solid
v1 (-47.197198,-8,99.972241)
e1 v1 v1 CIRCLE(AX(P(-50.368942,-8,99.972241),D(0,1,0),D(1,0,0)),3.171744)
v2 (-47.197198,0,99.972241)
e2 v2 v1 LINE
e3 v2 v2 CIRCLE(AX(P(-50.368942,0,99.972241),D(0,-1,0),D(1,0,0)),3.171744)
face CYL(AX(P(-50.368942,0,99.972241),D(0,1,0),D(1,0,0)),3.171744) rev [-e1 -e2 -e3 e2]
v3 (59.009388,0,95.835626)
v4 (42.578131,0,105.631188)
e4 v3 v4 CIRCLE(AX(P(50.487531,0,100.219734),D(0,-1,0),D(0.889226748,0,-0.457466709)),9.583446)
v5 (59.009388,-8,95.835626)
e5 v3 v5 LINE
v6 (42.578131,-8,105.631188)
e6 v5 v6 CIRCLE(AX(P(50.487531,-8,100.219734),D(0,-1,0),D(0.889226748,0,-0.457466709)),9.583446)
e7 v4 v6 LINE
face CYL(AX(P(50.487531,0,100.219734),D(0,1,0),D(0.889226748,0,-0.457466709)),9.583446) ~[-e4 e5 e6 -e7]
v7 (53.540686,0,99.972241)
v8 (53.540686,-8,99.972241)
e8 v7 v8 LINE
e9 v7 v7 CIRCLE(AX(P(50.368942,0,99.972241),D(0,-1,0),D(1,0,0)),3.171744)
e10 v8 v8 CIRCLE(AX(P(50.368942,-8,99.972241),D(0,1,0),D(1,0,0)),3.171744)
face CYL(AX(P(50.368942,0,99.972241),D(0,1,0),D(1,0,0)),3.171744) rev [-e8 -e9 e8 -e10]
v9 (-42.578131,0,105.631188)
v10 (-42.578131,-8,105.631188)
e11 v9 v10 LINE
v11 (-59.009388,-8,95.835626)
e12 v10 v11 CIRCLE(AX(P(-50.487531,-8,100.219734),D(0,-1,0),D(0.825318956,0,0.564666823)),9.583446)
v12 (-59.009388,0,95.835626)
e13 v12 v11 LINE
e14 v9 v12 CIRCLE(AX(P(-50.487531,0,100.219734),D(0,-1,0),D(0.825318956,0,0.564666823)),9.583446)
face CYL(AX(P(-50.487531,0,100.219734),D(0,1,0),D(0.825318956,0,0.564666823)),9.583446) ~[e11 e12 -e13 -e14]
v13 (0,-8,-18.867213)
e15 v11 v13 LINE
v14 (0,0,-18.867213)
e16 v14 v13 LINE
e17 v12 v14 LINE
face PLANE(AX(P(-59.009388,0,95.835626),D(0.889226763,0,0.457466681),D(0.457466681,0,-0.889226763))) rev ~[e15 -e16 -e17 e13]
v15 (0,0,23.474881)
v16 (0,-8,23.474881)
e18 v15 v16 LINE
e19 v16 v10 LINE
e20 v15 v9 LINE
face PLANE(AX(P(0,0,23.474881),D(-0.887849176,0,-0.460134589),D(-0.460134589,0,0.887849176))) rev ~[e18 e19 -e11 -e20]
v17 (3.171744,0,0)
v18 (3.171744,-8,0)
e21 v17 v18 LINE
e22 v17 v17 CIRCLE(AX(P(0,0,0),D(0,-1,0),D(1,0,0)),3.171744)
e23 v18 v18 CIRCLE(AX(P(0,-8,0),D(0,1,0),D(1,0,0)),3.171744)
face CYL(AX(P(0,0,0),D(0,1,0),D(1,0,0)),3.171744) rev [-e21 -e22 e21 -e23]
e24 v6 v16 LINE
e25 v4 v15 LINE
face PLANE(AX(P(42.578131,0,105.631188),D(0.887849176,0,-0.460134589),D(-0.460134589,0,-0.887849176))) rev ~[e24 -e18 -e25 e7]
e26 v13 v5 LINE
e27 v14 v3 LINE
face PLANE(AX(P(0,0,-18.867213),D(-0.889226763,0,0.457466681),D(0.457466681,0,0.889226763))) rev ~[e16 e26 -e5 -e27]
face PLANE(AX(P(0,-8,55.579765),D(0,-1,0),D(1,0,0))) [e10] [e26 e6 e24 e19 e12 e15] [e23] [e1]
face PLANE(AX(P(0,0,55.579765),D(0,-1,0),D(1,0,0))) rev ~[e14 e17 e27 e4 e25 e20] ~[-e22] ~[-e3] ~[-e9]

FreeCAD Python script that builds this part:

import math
import FreeCAD as App
import Part
import Sketcher
Q = App.Units.Quantity

doc = App.newDocument("Part")
params = doc.addObject("Spreadsheet::Sheet", "Params")
for row, (alias, value) in enumerate([
    ("pad1_length", "8 mm"),
    ("pocket1_length", "25 mm"),
    ("pocket2_length", "25 mm"),
], start=1):
    params.set(f"A{row}", alias)
    params.set(f"B{row}", "=" + value)
    params.setAlias(f"B{row}", alias)

body = doc.addObject("PartDesign::Body", "Body")

# Sketch on XZ plane
sketch1 = body.newObject("Sketcher::SketchObject", "Sketch")
sketch1.AttachmentSupport = (doc.getObject("XZ_Plane"), [""])
sketch1.MapMode = "FlatFace"
sketch1.addGeometry([
    Part.LineSegment(App.Vector(-59.009388, 95.835626, 0), App.Vector(0, -18.867213, 0)),  # 0
    Part.LineSegment(App.Vector(0, -18.867213, 0), App.Vector(59.009388, 95.835626, 0)),  # 1
    Part.ArcOfCircle(Part.Circle(App.Vector(50.487531, 100.219734, 0), App.Vector(0, 0, 1), 9.583446), math.radians(-27.223759), math.radians(145.620842)),  # 2
    Part.LineSegment(App.Vector(42.578131, 105.631188, 0), App.Vector(0, 23.474881, 0)),  # 3
    Part.LineSegment(App.Vector(0, 23.474881, 0), App.Vector(-42.578131, 105.631188, 0)),  # 4
    Part.ArcOfCircle(Part.Circle(App.Vector(-50.487531, 100.219734, 0), App.Vector(0, 0, 1), 9.583446), math.radians(34.379158), math.radians(207.223759)),  # 5
], False)
sketch1.addConstraint([
    Sketcher.Constraint("Coincident", 0, 2, 1, 1),
    Sketcher.Constraint("Tangent", 1, 2, 2, 1),
    Sketcher.Constraint("Coincident", 2, 2, 3, 1),
    Sketcher.Constraint("Coincident", 3, 2, 4, 1),
    Sketcher.Constraint("Coincident", 4, 2, 5, 1),
    Sketcher.Constraint("Tangent", 5, 2, 0, 1),
    Sketcher.Constraint("Equal", 2, 5),
    Sketcher.Constraint("Symmetric", 2, 3, 5, 3, -2),
    Sketcher.Constraint("PointOnObject", 0, 2, -2),
    Sketcher.Constraint("PointOnObject", 3, 2, -2),
    Sketcher.Constraint("Horizontal", 2, 2, 4, 2),
    Sketcher.Constraint("Radius", 2, Q("9.583446 mm")),
    Sketcher.Constraint("DistanceX", 2, 2, 2, 3, Q("7.9094 mm")),
    Sketcher.Constraint("DistanceY", 0, 2, 2, 2, Q("124.498401 mm")),
    Sketcher.Constraint("Distance", 3, Q("92.53408 mm")),
    Sketcher.Constraint("DistanceX", -1, 1, 2, 3, Q("50.487531 mm")),
    Sketcher.Constraint("DistanceY", -1, 1, 3, 2, Q("23.474881 mm")),
])
pad1 = body.newObject("PartDesign::Pad", "Pad")
pad1.Profile = sketch1
pad1.setExpression("Length", "Params.pad1_length")

# Sketch on XZ plane
sketch2 = body.newObject("Sketcher::SketchObject", "Sketch001")
sketch2.AttachmentSupport = (doc.getObject("XZ_Plane"), [""])
sketch2.MapMode = "FlatFace"
sketch2.addGeometry([
    Part.Circle(App.Vector(-50.368942, 99.972241, 0), App.Vector(0, 0, 1), 3.171744),
    Part.Circle(App.Vector(50.368942, 99.972241, 0), App.Vector(0, 0, 1), 3.171744),
], False)
sketch2.addConstraint([
    Sketcher.Constraint("Equal", 0, 1),
    Sketcher.Constraint("Symmetric", 0, 3, 1, 3, -2),
    Sketcher.Constraint("Diameter", 0, Q("6.343488 mm")),
    Sketcher.Constraint("DistanceX", 0, 3, -1, 1, Q("50.368942 mm")),
    Sketcher.Constraint("DistanceY", -1, 1, 0, 3, Q("99.972241 mm")),
])
pocket1 = body.newObject("PartDesign::Pocket", "Pocket")
pocket1.Profile = sketch2
pocket1.setExpression("Length", "Params.pocket1_length")
pocket1.Reversed = True

# Sketch on XZ plane
sketch3 = body.newObject("Sketcher::SketchObject", "Sketch002")
sketch3.AttachmentSupport = (doc.getObject("XZ_Plane"), [""])
sketch3.MapMode = "FlatFace"
sketch3.addGeometry(Part.Circle(App.Vector(0, 0, 0), App.Vector(0, 0, 1), 3.171744), False)
sketch3.addConstraint([
    Sketcher.Constraint("Coincident", 0, 3, -1, 1),
    Sketcher.Constraint("Diameter", 0, Q("6.343488 mm")),
])
pocket2 = body.newObject("PartDesign::Pocket", "Pocket001")
pocket2.Profile = sketch3
pocket2.setExpression("Length", "Params.pocket2_length")
pocket2.Reversed = True

doc.recompute()
